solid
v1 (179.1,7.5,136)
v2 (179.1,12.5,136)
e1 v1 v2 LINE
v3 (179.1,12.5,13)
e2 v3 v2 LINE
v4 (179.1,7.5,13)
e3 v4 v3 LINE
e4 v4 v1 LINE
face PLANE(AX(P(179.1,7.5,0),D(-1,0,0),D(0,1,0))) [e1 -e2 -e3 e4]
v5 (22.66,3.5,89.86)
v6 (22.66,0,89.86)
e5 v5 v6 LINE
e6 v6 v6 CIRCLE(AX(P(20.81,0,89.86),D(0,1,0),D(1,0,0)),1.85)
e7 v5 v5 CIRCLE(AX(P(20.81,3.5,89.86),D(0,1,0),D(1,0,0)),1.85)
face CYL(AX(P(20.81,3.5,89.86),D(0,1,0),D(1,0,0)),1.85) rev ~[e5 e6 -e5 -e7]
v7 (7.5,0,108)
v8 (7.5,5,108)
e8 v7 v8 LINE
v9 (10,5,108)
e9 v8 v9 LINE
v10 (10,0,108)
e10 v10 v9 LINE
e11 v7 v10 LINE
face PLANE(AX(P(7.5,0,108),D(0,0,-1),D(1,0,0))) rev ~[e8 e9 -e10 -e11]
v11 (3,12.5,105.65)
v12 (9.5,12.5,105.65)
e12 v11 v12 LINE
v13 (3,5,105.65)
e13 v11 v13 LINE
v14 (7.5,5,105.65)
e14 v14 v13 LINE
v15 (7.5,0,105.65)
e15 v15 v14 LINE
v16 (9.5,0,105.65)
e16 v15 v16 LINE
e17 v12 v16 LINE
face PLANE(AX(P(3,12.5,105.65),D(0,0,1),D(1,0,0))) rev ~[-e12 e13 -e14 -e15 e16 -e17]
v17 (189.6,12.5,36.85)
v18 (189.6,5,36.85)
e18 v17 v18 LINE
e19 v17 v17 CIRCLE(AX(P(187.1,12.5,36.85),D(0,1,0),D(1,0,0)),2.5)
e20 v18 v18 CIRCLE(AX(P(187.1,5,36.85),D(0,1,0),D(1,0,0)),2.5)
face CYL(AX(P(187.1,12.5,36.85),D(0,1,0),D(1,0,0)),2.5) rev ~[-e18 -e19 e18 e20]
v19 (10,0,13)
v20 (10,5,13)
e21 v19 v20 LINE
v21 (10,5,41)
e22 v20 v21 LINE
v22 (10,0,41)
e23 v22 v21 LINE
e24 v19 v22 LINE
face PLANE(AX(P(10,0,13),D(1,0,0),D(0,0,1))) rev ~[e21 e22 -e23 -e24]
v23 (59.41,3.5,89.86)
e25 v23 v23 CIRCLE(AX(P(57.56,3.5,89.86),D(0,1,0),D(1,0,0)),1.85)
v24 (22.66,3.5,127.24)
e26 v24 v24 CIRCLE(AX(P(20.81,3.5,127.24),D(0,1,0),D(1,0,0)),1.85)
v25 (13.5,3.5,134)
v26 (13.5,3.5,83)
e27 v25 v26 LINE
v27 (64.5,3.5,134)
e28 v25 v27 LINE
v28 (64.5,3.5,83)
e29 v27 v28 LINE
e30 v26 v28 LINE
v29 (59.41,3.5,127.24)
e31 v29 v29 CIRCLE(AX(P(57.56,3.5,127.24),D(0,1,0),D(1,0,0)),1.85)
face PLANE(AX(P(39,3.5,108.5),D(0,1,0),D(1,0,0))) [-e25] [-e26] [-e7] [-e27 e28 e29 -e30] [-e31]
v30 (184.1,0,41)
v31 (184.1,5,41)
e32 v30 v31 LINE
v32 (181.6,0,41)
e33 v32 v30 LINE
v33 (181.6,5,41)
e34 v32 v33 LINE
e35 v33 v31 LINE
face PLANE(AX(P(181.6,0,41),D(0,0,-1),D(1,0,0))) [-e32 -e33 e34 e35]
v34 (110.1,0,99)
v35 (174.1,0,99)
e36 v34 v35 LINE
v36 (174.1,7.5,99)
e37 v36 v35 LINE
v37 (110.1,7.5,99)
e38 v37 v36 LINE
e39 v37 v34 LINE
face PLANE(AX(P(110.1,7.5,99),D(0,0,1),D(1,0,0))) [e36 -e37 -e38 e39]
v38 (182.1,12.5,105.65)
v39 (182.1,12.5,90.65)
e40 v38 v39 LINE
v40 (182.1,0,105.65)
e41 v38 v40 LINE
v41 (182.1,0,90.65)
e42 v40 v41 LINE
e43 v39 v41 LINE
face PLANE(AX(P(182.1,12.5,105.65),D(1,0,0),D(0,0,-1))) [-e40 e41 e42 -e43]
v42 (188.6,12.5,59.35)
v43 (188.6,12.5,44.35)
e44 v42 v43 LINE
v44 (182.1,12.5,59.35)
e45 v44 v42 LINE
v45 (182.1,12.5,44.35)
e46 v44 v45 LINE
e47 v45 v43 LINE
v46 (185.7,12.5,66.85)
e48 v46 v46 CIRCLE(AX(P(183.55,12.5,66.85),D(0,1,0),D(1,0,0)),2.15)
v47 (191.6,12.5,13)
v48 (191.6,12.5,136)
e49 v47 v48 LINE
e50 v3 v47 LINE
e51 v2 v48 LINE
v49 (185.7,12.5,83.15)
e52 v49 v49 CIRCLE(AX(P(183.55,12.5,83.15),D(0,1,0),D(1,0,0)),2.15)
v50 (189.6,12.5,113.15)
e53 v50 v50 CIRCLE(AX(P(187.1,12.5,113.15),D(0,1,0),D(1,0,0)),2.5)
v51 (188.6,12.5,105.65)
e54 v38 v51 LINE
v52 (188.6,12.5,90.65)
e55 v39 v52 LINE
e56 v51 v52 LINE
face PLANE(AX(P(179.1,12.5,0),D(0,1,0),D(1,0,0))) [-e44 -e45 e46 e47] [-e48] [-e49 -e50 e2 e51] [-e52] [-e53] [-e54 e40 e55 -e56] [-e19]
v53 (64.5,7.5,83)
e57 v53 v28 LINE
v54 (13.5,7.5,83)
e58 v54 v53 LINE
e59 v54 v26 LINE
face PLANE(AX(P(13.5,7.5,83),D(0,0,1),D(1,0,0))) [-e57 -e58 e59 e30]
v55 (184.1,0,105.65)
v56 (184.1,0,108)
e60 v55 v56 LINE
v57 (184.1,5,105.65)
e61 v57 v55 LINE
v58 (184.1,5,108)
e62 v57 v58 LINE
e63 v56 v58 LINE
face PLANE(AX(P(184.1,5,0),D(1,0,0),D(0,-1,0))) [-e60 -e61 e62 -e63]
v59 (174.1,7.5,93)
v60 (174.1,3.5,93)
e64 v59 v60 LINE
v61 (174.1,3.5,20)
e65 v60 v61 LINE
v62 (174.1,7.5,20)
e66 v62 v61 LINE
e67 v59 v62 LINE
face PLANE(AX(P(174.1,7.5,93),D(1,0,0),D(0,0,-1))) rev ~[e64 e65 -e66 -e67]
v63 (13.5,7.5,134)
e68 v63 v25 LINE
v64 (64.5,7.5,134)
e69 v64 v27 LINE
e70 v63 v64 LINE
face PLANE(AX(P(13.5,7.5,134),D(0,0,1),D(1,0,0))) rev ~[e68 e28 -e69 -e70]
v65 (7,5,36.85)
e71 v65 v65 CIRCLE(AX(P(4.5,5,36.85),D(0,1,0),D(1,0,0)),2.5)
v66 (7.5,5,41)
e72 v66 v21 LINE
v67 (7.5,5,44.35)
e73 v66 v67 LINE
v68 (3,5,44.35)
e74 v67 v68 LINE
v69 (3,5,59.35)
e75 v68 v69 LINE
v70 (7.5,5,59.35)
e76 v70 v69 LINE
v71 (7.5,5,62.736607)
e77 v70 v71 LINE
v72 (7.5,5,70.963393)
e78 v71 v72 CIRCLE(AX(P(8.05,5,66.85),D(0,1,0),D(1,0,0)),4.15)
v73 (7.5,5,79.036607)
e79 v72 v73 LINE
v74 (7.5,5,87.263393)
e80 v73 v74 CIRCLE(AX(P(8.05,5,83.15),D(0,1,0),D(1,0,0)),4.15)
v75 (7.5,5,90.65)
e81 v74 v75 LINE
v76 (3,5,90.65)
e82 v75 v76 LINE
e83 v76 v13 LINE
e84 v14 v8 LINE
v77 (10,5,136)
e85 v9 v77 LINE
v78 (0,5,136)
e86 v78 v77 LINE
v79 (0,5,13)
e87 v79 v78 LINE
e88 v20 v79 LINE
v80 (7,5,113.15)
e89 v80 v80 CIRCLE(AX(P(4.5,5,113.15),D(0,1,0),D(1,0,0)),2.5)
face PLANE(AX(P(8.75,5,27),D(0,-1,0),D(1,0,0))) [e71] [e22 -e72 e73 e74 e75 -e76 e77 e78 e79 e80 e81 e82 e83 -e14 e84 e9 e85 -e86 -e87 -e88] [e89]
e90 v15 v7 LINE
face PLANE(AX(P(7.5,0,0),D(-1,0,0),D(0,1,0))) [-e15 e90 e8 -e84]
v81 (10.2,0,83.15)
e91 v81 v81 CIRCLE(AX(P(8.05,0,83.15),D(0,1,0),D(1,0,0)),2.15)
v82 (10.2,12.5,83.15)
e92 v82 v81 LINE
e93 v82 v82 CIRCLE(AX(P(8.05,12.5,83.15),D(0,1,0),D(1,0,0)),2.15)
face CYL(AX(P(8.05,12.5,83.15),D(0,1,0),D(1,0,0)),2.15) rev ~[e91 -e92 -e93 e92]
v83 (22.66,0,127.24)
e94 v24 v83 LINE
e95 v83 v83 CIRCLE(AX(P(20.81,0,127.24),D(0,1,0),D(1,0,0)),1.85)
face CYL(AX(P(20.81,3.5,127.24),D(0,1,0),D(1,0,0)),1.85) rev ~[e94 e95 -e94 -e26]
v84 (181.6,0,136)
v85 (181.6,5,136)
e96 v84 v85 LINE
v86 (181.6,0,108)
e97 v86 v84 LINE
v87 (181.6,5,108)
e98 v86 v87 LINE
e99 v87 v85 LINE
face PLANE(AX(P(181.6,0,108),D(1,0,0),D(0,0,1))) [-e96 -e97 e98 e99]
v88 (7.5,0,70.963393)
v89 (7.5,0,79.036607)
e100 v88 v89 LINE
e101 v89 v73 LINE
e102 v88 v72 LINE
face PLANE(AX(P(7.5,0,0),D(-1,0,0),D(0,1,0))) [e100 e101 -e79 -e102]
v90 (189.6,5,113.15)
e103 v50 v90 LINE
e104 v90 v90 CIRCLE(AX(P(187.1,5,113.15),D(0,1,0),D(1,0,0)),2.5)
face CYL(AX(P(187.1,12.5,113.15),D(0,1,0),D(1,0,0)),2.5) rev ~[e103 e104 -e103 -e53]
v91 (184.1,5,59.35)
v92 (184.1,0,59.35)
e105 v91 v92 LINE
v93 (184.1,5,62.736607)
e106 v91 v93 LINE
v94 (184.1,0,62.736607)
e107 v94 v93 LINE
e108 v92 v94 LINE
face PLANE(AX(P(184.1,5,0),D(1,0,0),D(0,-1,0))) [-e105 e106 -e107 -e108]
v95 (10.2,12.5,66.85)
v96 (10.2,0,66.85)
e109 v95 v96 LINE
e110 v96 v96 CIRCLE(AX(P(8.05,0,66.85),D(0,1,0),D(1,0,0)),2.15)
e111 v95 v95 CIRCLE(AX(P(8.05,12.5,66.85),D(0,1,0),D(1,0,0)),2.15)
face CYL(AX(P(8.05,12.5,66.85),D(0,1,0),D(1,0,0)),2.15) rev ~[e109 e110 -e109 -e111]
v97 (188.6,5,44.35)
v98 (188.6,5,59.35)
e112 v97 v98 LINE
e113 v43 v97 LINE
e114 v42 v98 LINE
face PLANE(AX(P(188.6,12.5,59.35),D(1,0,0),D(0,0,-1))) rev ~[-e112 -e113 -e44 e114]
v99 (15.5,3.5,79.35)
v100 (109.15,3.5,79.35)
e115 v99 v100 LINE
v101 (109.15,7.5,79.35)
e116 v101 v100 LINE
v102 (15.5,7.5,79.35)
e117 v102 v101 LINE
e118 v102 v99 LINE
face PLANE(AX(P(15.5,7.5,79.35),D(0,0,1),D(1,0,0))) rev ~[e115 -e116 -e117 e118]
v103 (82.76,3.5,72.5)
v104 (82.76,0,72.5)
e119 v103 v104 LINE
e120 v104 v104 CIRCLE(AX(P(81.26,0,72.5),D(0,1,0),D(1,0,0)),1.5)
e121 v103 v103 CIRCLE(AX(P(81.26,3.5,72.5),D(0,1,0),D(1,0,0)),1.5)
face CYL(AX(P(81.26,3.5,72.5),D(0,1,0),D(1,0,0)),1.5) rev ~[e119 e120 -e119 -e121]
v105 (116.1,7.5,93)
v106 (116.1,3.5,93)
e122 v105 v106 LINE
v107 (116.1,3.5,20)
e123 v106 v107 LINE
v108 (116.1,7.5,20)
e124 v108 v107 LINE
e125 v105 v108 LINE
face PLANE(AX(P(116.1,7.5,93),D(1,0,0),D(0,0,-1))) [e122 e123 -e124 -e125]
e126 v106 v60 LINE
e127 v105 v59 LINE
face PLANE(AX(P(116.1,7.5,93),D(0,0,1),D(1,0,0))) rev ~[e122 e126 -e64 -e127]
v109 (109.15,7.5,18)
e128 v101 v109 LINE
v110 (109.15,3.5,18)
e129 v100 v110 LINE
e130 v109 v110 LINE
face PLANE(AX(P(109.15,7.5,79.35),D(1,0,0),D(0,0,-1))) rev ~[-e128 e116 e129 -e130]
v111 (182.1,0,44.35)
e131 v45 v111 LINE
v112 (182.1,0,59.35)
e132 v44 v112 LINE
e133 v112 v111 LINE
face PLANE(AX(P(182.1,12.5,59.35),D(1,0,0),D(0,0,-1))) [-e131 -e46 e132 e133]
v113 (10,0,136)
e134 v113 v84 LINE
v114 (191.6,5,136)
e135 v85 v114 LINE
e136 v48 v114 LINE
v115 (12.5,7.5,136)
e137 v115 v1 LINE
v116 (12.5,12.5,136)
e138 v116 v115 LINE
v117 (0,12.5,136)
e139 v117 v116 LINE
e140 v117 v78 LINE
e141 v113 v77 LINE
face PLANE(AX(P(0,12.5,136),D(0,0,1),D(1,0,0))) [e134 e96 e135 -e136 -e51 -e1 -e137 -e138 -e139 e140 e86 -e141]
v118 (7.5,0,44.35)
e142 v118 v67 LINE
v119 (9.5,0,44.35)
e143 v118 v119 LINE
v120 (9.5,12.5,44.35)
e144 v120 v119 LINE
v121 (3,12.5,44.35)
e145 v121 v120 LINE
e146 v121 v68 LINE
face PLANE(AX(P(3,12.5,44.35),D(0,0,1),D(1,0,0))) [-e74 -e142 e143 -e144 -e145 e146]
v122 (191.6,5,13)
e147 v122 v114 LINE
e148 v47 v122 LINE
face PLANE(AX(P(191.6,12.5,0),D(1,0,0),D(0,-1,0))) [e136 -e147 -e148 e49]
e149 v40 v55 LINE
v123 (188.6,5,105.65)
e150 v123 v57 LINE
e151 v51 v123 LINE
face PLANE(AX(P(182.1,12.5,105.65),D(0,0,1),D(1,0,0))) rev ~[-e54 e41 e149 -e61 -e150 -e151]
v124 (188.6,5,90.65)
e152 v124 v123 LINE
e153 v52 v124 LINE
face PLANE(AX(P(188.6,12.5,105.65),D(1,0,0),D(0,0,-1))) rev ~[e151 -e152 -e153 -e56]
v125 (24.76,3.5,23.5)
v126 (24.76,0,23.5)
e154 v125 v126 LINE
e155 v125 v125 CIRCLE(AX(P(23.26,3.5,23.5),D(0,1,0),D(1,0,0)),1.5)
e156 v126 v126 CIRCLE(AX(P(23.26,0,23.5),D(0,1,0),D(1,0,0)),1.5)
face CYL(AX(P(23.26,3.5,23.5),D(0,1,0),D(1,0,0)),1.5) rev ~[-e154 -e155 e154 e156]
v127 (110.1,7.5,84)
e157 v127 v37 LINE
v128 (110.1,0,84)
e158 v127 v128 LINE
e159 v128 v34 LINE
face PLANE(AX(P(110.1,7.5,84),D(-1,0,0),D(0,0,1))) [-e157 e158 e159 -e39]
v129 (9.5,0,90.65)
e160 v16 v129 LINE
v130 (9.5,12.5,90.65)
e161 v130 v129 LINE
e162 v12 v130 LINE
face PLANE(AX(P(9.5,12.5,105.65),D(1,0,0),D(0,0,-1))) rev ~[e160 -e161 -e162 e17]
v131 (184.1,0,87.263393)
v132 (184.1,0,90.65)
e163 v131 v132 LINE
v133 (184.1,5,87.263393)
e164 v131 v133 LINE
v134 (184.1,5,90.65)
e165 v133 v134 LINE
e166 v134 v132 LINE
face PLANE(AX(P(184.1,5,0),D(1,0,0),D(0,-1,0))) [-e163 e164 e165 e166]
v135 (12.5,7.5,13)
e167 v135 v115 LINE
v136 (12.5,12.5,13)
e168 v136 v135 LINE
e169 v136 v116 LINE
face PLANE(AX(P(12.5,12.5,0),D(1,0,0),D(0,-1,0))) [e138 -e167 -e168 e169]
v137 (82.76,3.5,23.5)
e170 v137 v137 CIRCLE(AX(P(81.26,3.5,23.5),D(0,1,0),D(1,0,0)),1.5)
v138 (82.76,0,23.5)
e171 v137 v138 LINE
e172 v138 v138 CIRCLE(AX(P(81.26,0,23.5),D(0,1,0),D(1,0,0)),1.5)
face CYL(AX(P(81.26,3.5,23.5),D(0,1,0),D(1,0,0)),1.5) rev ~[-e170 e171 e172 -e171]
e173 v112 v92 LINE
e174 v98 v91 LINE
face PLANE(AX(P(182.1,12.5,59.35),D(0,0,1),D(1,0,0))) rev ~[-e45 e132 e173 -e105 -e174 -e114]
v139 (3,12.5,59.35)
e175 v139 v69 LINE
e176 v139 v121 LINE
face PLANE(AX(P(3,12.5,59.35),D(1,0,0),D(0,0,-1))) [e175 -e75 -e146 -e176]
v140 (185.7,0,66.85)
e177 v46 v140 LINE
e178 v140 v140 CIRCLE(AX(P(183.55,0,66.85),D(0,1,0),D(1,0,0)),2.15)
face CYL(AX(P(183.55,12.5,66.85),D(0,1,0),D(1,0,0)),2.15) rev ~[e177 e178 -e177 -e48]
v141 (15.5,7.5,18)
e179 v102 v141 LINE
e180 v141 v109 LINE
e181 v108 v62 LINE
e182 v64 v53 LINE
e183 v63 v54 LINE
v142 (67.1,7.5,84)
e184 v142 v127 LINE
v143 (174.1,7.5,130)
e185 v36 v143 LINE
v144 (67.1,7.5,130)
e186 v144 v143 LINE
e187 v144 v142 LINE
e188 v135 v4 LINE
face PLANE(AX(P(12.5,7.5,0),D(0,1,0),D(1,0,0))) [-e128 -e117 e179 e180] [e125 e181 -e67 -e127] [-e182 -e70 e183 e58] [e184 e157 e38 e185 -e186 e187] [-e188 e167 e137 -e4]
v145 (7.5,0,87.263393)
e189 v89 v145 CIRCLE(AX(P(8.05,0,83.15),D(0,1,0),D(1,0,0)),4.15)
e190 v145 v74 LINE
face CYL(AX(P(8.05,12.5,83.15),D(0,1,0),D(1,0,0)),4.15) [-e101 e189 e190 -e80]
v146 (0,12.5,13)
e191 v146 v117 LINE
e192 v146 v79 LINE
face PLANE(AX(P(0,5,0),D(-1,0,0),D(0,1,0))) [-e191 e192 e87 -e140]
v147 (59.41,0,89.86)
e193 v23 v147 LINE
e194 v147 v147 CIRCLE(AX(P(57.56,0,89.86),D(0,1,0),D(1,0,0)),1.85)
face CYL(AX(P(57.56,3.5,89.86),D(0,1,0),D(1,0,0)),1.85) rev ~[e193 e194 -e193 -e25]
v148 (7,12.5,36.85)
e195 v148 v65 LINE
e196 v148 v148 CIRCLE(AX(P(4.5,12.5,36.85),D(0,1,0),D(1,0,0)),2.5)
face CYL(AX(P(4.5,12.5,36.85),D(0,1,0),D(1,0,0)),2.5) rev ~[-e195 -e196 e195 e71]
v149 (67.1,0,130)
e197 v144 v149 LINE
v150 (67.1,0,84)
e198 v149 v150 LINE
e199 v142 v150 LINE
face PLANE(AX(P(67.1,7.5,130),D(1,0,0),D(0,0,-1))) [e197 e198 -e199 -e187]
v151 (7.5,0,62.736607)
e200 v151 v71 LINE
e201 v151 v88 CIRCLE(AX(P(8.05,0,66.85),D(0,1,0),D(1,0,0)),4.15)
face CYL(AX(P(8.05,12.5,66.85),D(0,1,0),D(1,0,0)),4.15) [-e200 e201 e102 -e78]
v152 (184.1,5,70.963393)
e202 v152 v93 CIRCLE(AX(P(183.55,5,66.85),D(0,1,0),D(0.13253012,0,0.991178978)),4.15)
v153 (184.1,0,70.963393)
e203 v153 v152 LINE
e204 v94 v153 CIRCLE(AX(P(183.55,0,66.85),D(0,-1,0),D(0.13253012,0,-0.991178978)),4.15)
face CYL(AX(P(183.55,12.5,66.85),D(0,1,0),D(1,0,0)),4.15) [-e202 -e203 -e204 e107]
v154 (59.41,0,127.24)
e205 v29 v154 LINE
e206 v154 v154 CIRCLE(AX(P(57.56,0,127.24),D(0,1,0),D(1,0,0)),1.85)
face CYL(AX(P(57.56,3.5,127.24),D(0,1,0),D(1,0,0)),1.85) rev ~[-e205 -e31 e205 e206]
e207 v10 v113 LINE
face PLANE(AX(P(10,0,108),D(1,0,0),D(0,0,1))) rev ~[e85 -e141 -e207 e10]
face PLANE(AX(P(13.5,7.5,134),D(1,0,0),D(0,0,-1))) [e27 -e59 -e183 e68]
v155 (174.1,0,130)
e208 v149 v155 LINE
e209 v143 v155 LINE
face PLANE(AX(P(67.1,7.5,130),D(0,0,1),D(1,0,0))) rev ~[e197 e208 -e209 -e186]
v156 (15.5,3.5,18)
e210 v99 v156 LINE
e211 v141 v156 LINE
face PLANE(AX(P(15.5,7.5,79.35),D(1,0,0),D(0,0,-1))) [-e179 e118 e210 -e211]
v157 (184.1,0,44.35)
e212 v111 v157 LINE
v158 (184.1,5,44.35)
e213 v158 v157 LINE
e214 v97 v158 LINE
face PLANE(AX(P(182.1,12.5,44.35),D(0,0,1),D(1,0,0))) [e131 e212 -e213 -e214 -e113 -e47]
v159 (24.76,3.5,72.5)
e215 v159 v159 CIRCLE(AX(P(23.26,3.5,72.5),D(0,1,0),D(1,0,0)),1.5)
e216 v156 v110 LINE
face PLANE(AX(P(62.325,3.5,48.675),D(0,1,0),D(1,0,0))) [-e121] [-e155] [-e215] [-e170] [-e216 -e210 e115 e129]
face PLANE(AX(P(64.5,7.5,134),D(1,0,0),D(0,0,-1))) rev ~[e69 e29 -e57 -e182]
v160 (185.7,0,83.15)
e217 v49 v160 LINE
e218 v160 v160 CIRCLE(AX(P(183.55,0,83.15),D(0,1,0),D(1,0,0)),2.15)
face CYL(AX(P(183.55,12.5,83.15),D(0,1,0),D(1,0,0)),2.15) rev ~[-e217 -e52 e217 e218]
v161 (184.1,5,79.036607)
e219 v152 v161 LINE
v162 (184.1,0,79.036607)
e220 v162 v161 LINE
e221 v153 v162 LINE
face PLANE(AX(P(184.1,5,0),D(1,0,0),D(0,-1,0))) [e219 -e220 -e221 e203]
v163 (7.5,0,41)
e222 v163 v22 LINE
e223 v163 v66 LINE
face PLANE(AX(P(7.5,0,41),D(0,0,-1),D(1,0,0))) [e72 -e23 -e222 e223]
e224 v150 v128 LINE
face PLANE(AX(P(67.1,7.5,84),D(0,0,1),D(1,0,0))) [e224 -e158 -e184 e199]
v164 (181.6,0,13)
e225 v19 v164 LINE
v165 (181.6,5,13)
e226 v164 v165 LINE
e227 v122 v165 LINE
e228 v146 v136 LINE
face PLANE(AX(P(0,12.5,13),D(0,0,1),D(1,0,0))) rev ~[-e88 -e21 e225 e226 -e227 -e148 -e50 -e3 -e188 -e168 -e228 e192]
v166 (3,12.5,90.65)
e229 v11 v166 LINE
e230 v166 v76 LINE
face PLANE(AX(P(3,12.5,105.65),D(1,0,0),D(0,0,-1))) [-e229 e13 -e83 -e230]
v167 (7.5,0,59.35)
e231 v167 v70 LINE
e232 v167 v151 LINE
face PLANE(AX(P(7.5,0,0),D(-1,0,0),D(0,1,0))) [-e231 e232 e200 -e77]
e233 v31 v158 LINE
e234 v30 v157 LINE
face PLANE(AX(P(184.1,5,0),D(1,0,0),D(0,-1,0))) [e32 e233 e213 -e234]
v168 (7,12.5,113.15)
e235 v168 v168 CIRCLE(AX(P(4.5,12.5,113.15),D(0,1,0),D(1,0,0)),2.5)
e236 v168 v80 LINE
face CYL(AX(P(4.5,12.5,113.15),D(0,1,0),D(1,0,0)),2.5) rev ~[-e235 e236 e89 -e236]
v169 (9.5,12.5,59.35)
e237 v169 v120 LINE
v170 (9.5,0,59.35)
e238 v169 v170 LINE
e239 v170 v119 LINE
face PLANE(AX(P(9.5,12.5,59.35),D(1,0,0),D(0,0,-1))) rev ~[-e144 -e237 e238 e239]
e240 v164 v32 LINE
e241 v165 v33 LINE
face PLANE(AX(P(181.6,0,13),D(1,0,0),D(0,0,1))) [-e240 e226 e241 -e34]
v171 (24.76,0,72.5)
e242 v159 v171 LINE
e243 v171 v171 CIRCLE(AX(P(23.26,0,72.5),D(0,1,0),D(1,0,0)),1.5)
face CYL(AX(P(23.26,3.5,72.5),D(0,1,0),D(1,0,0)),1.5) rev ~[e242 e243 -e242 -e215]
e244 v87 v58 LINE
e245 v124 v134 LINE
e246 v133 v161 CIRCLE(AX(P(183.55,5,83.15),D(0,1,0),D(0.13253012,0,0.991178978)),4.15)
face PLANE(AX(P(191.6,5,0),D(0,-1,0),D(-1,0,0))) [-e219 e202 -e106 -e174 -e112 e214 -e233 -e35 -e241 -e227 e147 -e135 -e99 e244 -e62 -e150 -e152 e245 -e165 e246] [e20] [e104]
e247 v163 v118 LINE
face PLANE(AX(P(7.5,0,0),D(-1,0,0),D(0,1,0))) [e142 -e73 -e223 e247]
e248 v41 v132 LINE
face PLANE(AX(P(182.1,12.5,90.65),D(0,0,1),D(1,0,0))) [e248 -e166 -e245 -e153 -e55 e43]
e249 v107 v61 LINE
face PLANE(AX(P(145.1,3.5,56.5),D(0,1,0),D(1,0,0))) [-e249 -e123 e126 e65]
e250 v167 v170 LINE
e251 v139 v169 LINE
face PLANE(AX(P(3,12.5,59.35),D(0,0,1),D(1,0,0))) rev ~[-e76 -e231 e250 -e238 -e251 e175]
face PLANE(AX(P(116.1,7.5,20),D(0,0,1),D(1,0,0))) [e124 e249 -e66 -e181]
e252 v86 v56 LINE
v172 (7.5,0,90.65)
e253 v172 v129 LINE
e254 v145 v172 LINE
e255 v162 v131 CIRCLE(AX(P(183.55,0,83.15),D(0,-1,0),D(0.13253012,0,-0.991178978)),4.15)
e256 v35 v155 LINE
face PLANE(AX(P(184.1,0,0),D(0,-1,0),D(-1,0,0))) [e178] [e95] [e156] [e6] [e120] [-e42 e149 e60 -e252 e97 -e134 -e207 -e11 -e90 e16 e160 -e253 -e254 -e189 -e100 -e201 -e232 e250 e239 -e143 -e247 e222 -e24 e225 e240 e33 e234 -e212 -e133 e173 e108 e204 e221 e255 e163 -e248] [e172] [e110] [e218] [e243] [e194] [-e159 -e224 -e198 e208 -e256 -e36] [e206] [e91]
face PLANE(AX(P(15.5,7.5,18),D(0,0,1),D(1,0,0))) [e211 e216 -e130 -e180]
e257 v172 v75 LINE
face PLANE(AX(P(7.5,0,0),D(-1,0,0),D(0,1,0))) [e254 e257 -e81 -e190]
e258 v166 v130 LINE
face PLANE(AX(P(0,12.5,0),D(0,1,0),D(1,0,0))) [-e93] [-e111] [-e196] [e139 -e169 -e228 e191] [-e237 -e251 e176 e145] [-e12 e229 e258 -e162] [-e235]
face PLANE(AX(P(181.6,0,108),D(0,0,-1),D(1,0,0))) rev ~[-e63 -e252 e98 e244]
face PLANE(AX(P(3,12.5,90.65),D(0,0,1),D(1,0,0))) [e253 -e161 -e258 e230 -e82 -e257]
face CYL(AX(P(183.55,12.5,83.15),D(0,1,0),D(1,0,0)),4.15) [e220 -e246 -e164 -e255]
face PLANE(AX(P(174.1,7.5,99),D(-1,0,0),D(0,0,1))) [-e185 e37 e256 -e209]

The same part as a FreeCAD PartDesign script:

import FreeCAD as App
import Part
import Sketcher
from FreeCAD import Vector


def add_polygon(sketch, points):
    """Adds a closed chain of lines whose ends are joined by coincident constraints."""
    first, n = sketch.GeometryCount, len(points)
    for a, b in zip(points, points[1:] + points[:1]):
        sketch.addGeometry(Part.LineSegment(App.Vector(*a, 0), App.Vector(*b, 0)), False)
    for i in range(n):
        sketch.addConstraint(Sketcher.Constraint("Coincident", first + i, 2, first + (i + 1) % n, 1))

doc = App.newDocument("Part")
body = doc.addObject("PartDesign::Body", "Body")

# Sketch on XY plane
sketch1 = doc.addObject("Sketcher::SketchObject", "Sketch")
body.addObject(sketch1)
sketch1.AttachmentSupport = (doc.XY_Plane, [""])
sketch1.MapMode = "FlatFace"
add_polygon(sketch1, [(192, 12), (179, 12), (179, 8), (12, 8), (12, 12), (0, 12), (0, 5), (8, 5), (8, 0), (184, 0), (184, 5), (192, 5)])  # lines 0-11
sketch1.addConstraint([
    Sketcher.Constraint("Horizontal", 0),
    Sketcher.Constraint("Vertical", 1),
    Sketcher.Constraint("Horizontal", 2),
    Sketcher.Constraint("Vertical", 3),
    Sketcher.Constraint("Horizontal", 4),
    Sketcher.Constraint("Vertical", 5),
    Sketcher.Constraint("Horizontal", 6),
    Sketcher.Constraint("Vertical", 7),
    Sketcher.Constraint("Horizontal", 8),
    Sketcher.Constraint("Vertical", 9),
    Sketcher.Constraint("Horizontal", 10),
    Sketcher.Constraint("Vertical", 11),
    Sketcher.Constraint("PointOnObject", 4, 2, -2),
    Sketcher.Constraint("PointOnObject", 7, 2, -1),
    Sketcher.Constraint("Horizontal", 0, 2, 3, 2),
    Sketcher.Constraint("Horizontal", 6, 2, 9, 2),
    Sketcher.Constraint("Equal", 0, 4),
    Sketcher.Constraint("Equal", 6, 10),
    Sketcher.Constraint("Equal", 10, 5),
    Sketcher.Constraint("Equal", 3, 7),
    Sketcher.Constraint("DistanceY", 1, 2, 1, 1, 5.0),
    Sketcher.Constraint("DistanceX", 0, 2, 0, 1, 12.5),
    Sketcher.Constraint("DistanceX", 2, 2, 2, 1, 166.6),
    Sketcher.Constraint("DistanceX", 6, 1, 6, 2, 7.5),
])
pad1 = doc.addObject("PartDesign::Pad", "Pad")
body.addObject(pad1)
pad1.Profile = sketch1
pad1.Length = 150

# Sketch on XZ plane
sketch2 = doc.addObject("Sketcher::SketchObject", "Sketch001")
body.addObject(sketch2)
sketch2.AttachmentSupport = (doc.XZ_Plane, [""])
sketch2.MapMode = "FlatFace"
sketch2.AttachmentOffset = App.Placement(Vector(0, 0, -12.5), App.Rotation())
sketch2.addGeometry([
    Part.Circle(Vector(8.1, 66.8, 0), Vector(0, 0, 1), 2.5),
    Part.Circle(Vector(8.1, 83.2, 0), Vector(0, 0, 1), 2.5),
    Part.Circle(Vector(183.6, 66.8, 0), Vector(0, 0, 1), 2.5),
    Part.Circle(Vector(183.6, 83.2, 0), Vector(0, 0, 1), 2.5),
], False)
sketch2.addConstraint([
    Sketcher.Constraint("Equal", 0, 1),
    Sketcher.Constraint("Equal", 1, 2),
    Sketcher.Constraint("Equal", 2, 3),
    Sketcher.Constraint("Horizontal", 0, 3, 2, 3),
    Sketcher.Constraint("Horizontal", 1, 3, 3, 3),
    Sketcher.Constraint("Vertical", 0, 3, 1, 3),
    Sketcher.Constraint("Vertical", 2, 3, 3, 3),
    Sketcher.Constraint("Diameter", 0, 5.0),
    Sketcher.Constraint("DistanceY", 0, 3, 1, 3, 16.3),
    Sketcher.Constraint("DistanceX", 0, 3, 2, 3, 175.5),
    Sketcher.Constraint("DistanceX", -1, 1, 0, 3, 8.05),
    Sketcher.Constraint("DistanceY", -1, 1, 0, 3, 66.85),
])
pocket1 = doc.addObject("PartDesign::Pocket", "Pocket")
body.addObject(pocket1)
pocket1.Profile = sketch2
pocket1.Type = "ThroughAll"
pocket1.Reversed = True

# Sketch on XZ plane
sketch3 = doc.addObject("Sketcher::SketchObject", "Sketch002")
body.addObject(sketch3)
sketch3.AttachmentSupport = (doc.XZ_Plane, [""])
sketch3.MapMode = "FlatFace"
sketch3.AttachmentOffset = App.Placement(Vector(0, 0, -12.5), App.Rotation())
sketch3.addGeometry([
    Part.Circle(Vector(183.6, 66.8, 0), Vector(0, 0, 1), 4.2),  # 0
    Part.Circle(Vector(183.6, 66.8, 0), Vector(0, 0, 1), 2.1),  # 1
    Part.Circle(Vector(183.6, 83.2, 0), Vector(0, 0, 1), 4.2),  # 2
    Part.Circle(Vector(183.6, 83.2, 0), Vector(0, 0, 1), 2.1),  # 3
    Part.Circle(Vector(8.1, 66.8, 0), Vector(0, 0, 1), 4.2),  # 4
    Part.Circle(Vector(8.1, 66.8, 0), Vector(0, 0, 1), 2.1),  # 5
    Part.Circle(Vector(8.1, 83.2, 0), Vector(0, 0, 1), 4.2),  # 6
    Part.Circle(Vector(8.1, 83.2, 0), Vector(0, 0, 1), 2.1),  # 7
], False)
sketch3.addConstraint([
    Sketcher.Constraint("Coincident", 1, 3, 0, 3),
    Sketcher.Constraint("Coincident", 3, 3, 2, 3),
    Sketcher.Constraint("Coincident", 5, 3, 4, 3),
    Sketcher.Constraint("Coincident", 7, 3, 6, 3),
    Sketcher.Constraint("Equal", 0, 2),
    Sketcher.Constraint("Equal", 1, 3),
    Sketcher.Constraint("Equal", 2, 4),
    Sketcher.Constraint("Equal", 3, 5),
    Sketcher.Constraint("Equal", 4, 6),
    Sketcher.Constraint("Equal", 5, 7),
    Sketcher.Constraint("Horizontal", 1, 3, 4, 3),
    Sketcher.Constraint("Horizontal", 3, 3, 6, 3),
    Sketcher.Constraint("Vertical", 1, 3, 2, 3),
    Sketcher.Constraint("Vertical", 5, 3, 6, 3),
    Sketcher.Constraint("Diameter", 0, 8.3),
    Sketcher.Constraint("Diameter", 1, 4.3),
    Sketcher.Constraint("DistanceY", 0, 3, 2, 3, 16.3),
    Sketcher.Constraint("DistanceX", 4, 3, 0, 3, 175.5),
    Sketcher.Constraint("DistanceX", -1, 1, 0, 3, 183.55),
    Sketcher.Constraint("DistanceY", -1, 1, 0, 3, 66.85),
])
pad2 = doc.addObject("PartDesign::Pad", "Pad001")
body.addObject(pad2)
pad2.Profile = sketch3
pad2.Length = 12.5

# Sketch on XZ plane
sketch4 = doc.addObject("Sketcher::SketchObject", "Sketch003")
body.addObject(sketch4)
sketch4.AttachmentSupport = (doc.XZ_Plane, [""])
sketch4.MapMode = "FlatFace"
sketch4.AttachmentOffset = App.Placement(Vector(0, 0, -7.5), App.Rotation())
add_polygon(sketch4, [(18, 87), (18, 130), (60, 130), (60, 87)])  # lines 0-3
add_polygon(sketch4, [(18, 20), (18, 77), (107, 77), (107, 20)])  # lines 4-7
add_polygon(sketch4, [(116, 20), (116, 93), (174, 93), (174, 20)])  # lines 8-11
sketch4.addConstraint([
    Sketcher.Constraint("Vertical", 0),
    Sketcher.Constraint("Horizontal", 1),
    Sketcher.Constraint("Vertical", 2),
    Sketcher.Constraint("Horizontal", 3),
    Sketcher.Constraint("Vertical", 4),
    Sketcher.Constraint("Horizontal", 5),
    Sketcher.Constraint("Vertical", 6),
    Sketcher.Constraint("Horizontal", 7),
    Sketcher.Constraint("Vertical", 8),
    Sketcher.Constraint("Horizontal", 9),
    Sketcher.Constraint("Vertical", 10),
    Sketcher.Constraint("Horizontal", 11),
    Sketcher.Constraint("Horizontal", 7, 2, 10, 2),
    Sketcher.Constraint("Vertical", 3, 2, 4, 2),
    Sketcher.Constraint("Equal", 3, 0),
    Sketcher.Constraint("DistanceX", 1, 1, 1, 2, 43.0),
    Sketcher.Constraint("DistanceX", 9, 1, 9, 2, 58.0),
    Sketcher.Constraint("DistanceY", 8, 1, 8, 2, 73.0),
    Sketcher.Constraint("DistanceY", -1, 1, 0, 2, 130.0),
    Sketcher.Constraint("DistanceY", -1, 1, 6, 2, 20.0),
    Sketcher.Constraint("DistanceX", 5, 1, 5, 2, 89.65),
    Sketcher.Constraint("DistanceY", 4, 1, 4, 2, 57.35),
    Sketcher.Constraint("DistanceX", -1, 1, 0, 2, 17.5),
    Sketcher.Constraint("DistanceX", -1, 1, 8, 2, 116.1),
])
pocket2 = doc.addObject("PartDesign::Pocket", "Pocket001")
body.addObject(pocket2)
pocket2.Profile = sketch4
pocket2.Length = 4
pocket2.Reversed = True

# Sketch on XZ plane
sketch5 = doc.addObject("Sketcher::SketchObject", "Sketch004")
body.addObject(sketch5)
sketch5.AttachmentSupport = (doc.XZ_Plane, [""])
sketch5.MapMode = "FlatFace"
sketch5.AttachmentOffset = App.Placement(Vector(0, 0, -7.5), App.Rotation())
add_polygon(sketch5, [(110, 84), (67, 84), (67, 130), (174, 130), (174, 99), (110, 99)])  # lines 0-5
sketch5.addConstraint([
    Sketcher.Constraint("Horizontal", 0),
    Sketcher.Constraint("Vertical", 1),
    Sketcher.Constraint("Horizontal", 2),
    Sketcher.Constraint("Vertical", 3),
    Sketcher.Constraint("Horizontal", 4),
    Sketcher.Constraint("Vertical", 5),
    Sketcher.Constraint("DistanceX", 0, 2, 0, 1, 43.0),
    Sketcher.Constraint("DistanceX", 2, 1, 2, 2, 107.0),
    Sketcher.Constraint("DistanceY", 1, 1, 1, 2, 46.0),
    Sketcher.Constraint("DistanceY", 3, 2, 3, 1, 31.0),
    Sketcher.Constraint("DistanceY", -1, 1, 0, 2, 84.0),
    Sketcher.Constraint("DistanceX", -1, 1, 0, 2, 67.1),
])
pocket3 = doc.addObject("PartDesign::Pocket", "Pocket002")
body.addObject(pocket3)
pocket3.Profile = sketch5
pocket3.Length = 7.5
pocket3.Reversed = True

# Sketch on XZ plane
sketch6 = doc.addObject("Sketcher::SketchObject", "Sketch005")
body.addObject(sketch6)
sketch6.AttachmentSupport = (doc.XZ_Plane, [""])
sketch6.MapMode = "FlatFace"
sketch6.AttachmentOffset = App.Placement(Vector(0, 0, -3.5), App.Rotation())
sketch6.addGeometry([
    Part.Circle(Vector(23.3, 23.5, 0), Vector(0, 0, 1), 1.5),
    Part.Circle(Vector(23.3, 72.5, 0), Vector(0, 0, 1), 1.5),
    Part.Circle(Vector(81.3, 72.5, 0), Vector(0, 0, 1), 1.5),
    Part.Circle(Vector(81.3, 23.5, 0), Vector(0, 0, 1), 1.5),
], False)
sketch6.addConstraint([
    Sketcher.Constraint("Equal", 0, 1),
    Sketcher.Constraint("Equal", 1, 2),
    Sketcher.Constraint("Equal", 2, 3),
    Sketcher.Constraint("Horizontal", 1, 3, 2, 3),
    Sketcher.Constraint("Horizontal", 0, 3, 3, 3),
    Sketcher.Constraint("Vertical", 0, 3, 1, 3),
    Sketcher.Constraint("Vertical", 2, 3, 3, 3),
    Sketcher.Constraint("Diameter", 0, 3.0),
    Sketcher.Constraint("DistanceY", 0, 3, 1, 3, 49.0),
    Sketcher.Constraint("DistanceX", 1, 3, 2, 3, 58.0),
    Sketcher.Constraint("DistanceY", -1, 1, 0, 3, 23.5),
    Sketcher.Constraint("DistanceX", -1, 1, 0, 3, 23.26),
])
pocket4 = doc.addObject("PartDesign::Pocket", "Pocket003")
body.addObject(pocket4)
pocket4.Profile = sketch6
pocket4.Length = 3.5
pocket4.Reversed = True

# Sketch on XZ plane
sketch7 = doc.addObject("Sketcher::SketchObject", "Sketch006")
body.addObject(sketch7)
sketch7.AttachmentSupport = (doc.XZ_Plane, [""])
sketch7.MapMode = "FlatFace"
sketch7.AttachmentOffset = App.Placement(Vector(0, 0, -3.5), App.Rotation())
sketch7.addGeometry([
    Part.Circle(Vector(57.6, 127.2, 0), Vector(0, 0, 1), 1.9),
    Part.Circle(Vector(57.6, 89.9, 0), Vector(0, 0, 1), 1.9),
    Part.Circle(Vector(20.8, 89.9, 0), Vector(0, 0, 1), 1.9),
    Part.Circle(Vector(20.8, 127.2, 0), Vector(0, 0, 1), 1.9),
], False)
sketch7.addConstraint([
    Sketcher.Constraint("Equal", 0, 1),
    Sketcher.Constraint("Equal", 1, 2),
    Sketcher.Constraint("Equal", 2, 3),
    Sketcher.Constraint("Horizontal", 1, 3, 2, 3),
    Sketcher.Constraint("Horizontal", 0, 3, 3, 3),
    Sketcher.Constraint("Vertical", 0, 3, 1, 3),
    Sketcher.Constraint("Vertical", 2, 3, 3, 3),
    Sketcher.Constraint("Diameter", 0, 3.7),
    Sketcher.Constraint("DistanceX", -1, 1, 0, 3, 57.56),
    Sketcher.Constraint("DistanceY", -1, 1, 0, 3, 127.24),
    Sketcher.Constraint("DistanceY", -1, 1, 1, 3, 89.86),
    Sketcher.Constraint("DistanceX", -1, 1, 2, 3, 20.81),
])
pocket5 = doc.addObject("PartDesign::Pocket", "Pocket004")
body.addObject(pocket5)
pocket5.Profile = sketch7
pocket5.Length = 3.5
pocket5.Reversed = True

# Sketch on XZ plane
sketch8 = doc.addObject("Sketcher::SketchObject", "Sketch007")
body.addObject(sketch8)
sketch8.AttachmentSupport = (doc.XZ_Plane, [""])
sketch8.MapMode = "FlatFace"
sketch8.AttachmentOffset = App.Placement(Vector(0, 0, -7.5), App.Rotation())
add_polygon(sketch8, [(16, 86), (16, 131), (62, 131), (62, 86)])  # lines 0-3
add_polygon(sketch8, [(60, 130), (18, 130), (18, 87), (60, 87)])  # lines 4-7
sketch8.addConstraint([
    Sketcher.Constraint("Vertical", 0),
    Sketcher.Constraint("Horizontal", 1),
    Sketcher.Constraint("Vertical", 2),
    Sketcher.Constraint("Horizontal", 3),
    Sketcher.Constraint("Horizontal", 4),
    Sketcher.Constraint("Vertical", 5),
    Sketcher.Constraint("Horizontal", 6),
    Sketcher.Constraint("Vertical", 7),
    Sketcher.Constraint("Equal", 3, 0),
    Sketcher.Constraint("Equal", 6, 5),
    Sketcher.Constraint("DistanceX", 1, 1, 1, 2, 45.0),
    Sketcher.Constraint("DistanceX", 4, 2, 4, 1, 43.0),
    Sketcher.Constraint("DistanceY", -1, 1, 0, 2, 131.0),
    Sketcher.Constraint("DistanceY", -1, 1, 4, 2, 130.0),
    Sketcher.Constraint("DistanceX", 0, 2, 4, 2, 1.0),
    Sketcher.Constraint("DistanceX", -1, 1, 0, 2, 16.5),
])
pocket6 = doc.addObject("PartDesign::Pocket", "Pocket005")
body.addObject(pocket6)
pocket6.Profile = sketch8
pocket6.Length = 4
pocket6.Reversed = True

# Sketch on XZ plane
sketch9 = doc.addObject("Sketcher::SketchObject", "Sketch008")
body.addObject(sketch9)
sketch9.AttachmentSupport = (doc.XZ_Plane, [""])
sketch9.MapMode = "FlatFace"
sketch9.AttachmentOffset = App.Placement(Vector(0, 0, -7.5), App.Rotation())
add_polygon(sketch9, [(16, 18), (16, 79), (109, 79), (109, 18)])  # lines 0-3
add_polygon(sketch9, [(107, 77), (18, 77), (18, 20), (107, 20)])  # lines 4-7
sketch9.addConstraint([
    Sketcher.Constraint("Vertical", 0),
    Sketcher.Constraint("Horizontal", 1),
    Sketcher.Constraint("Vertical", 2),
    Sketcher.Constraint("Horizontal", 3),
    Sketcher.Constraint("Horizontal", 4),
    Sketcher.Constraint("Vertical", 5),
    Sketcher.Constraint("Horizontal", 6),
    Sketcher.Constraint("Vertical", 7),
    Sketcher.Constraint("DistanceY", -1, 1, 2, 2, 18.0),
    Sketcher.Constraint("DistanceY", -1, 1, 5, 2, 20.0),
    Sketcher.Constraint("DistanceX", 0, 2, 4, 2, 2.0),
    Sketcher.Constraint("DistanceY", 4, 2, 0, 2, 2.0),
    Sketcher.Constraint("DistanceX", 6, 2, 2, 2, 2.0),
    Sketcher.Constraint("DistanceX", 1, 1, 1, 2, 93.65),
    Sketcher.Constraint("DistanceY", 0, 1, 0, 2, 61.35),
    Sketcher.Constraint("DistanceX", -1, 1, 0, 2, 15.5),
])
pocket7 = doc.addObject("PartDesign::Pocket", "Pocket006")
body.addObject(pocket7)
pocket7.Profile = sketch9
pocket7.Length = 4
pocket7.Reversed = True

# Sketch on XZ plane
sketch10 = doc.addObject("Sketcher::SketchObject", "Sketch009")
body.addObject(sketch10)
sketch10.AttachmentSupport = (doc.XZ_Plane, [""])
sketch10.MapMode = "FlatFace"
sketch10.AttachmentOffset = App.Placement(Vector(0, 0, -12.5), App.Rotation())
add_polygon(sketch10, [(0, 0), (0, 13), (192, 13), (192, 0)])  # lines 0-3
add_polygon(sketch10, [(0, 136), (0, 150), (192, 150), (192, 136)])  # lines 4-7
sketch10.addConstraint([
    Sketcher.Constraint("Vertical", 0),
    Sketcher.Constraint("Horizontal", 1),
    Sketcher.Constraint("Vertical", 2),
    Sketcher.Constraint("Horizontal", 3),
    Sketcher.Constraint("Vertical", 4),
    Sketcher.Constraint("Horizontal", 5),
    Sketcher.Constraint("Vertical", 6),
    Sketcher.Constraint("Horizontal", 7),
    Sketcher.Constraint("Coincident", 3, 2, -1, 1),
    Sketcher.Constraint("PointOnObject", 4, 2, -2),
    Sketcher.Constraint("Vertical", 2, 2, 5, 2),
    Sketcher.Constraint("DistanceY", 0, 1, 0, 2, 13.0),
    Sketcher.Constraint("DistanceY", 4, 1, 4, 2, 14.0),
    Sketcher.Constraint("DistanceX", 1, 1, 1, 2, 191.6),
    Sketcher.Constraint("DistanceY", -1, 1, 4, 2, 150.0),
])
pocket8 = doc.addObject("PartDesign::Pocket", "Pocket007")
body.addObject(pocket8)
pocket8.Profile = sketch10
pocket8.Length = 12.5
pocket8.Reversed = True

# Sketch on XZ plane
sketch11 = doc.addObject("Sketcher::SketchObject", "Sketch010")
body.addObject(sketch11)
sketch11.AttachmentSupport = (doc.XZ_Plane, [""])
sketch11.MapMode = "FlatFace"
sketch11.AttachmentOffset = App.Placement(Vector(0, 0, -12.5), App.Rotation())
add_polygon(sketch11, [(3, 44), (3, 59), (10, 59), (10, 44)])  # lines 0-3
add_polygon(sketch11, [(3, 91), (3, 106), (10, 106), (10, 91)])  # lines 4-7
add_polygon(sketch11, [(182, 44), (182, 59), (189, 59), (189, 44)])  # lines 8-11
add_polygon(sketch11, [(182, 91), (182, 106), (189, 106), (189, 91)])  # lines 12-15
sketch11.addConstraint([
    Sketcher.Constraint("Vertical", 0),
    Sketcher.Constraint("Horizontal", 1),
    Sketcher.Constraint("Vertical", 2),
    Sketcher.Constraint("Horizontal", 3),
    Sketcher.Constraint("Vertical", 4),
    Sketcher.Constraint("Horizontal", 5),
    Sketcher.Constraint("Vertical", 6),
    Sketcher.Constraint("Horizontal", 7),
    Sketcher.Constraint("Vertical", 8),
    Sketcher.Constraint("Horizontal", 9),
    Sketcher.Constraint("Vertical", 10),
    Sketcher.Constraint("Horizontal", 11),
    Sketcher.Constraint("Vertical", 12),
    Sketcher.Constraint("Horizontal", 13),
    Sketcher.Constraint("Vertical", 14),
    Sketcher.Constraint("Horizontal", 15),
    Sketcher.Constraint("Horizontal", 1, 2, 8, 2),
    Sketcher.Constraint("Horizontal", 3, 2, 10, 2),
    Sketcher.Constraint("Horizontal", 5, 2, 12, 2),
    Sketcher.Constraint("Horizontal", 7, 2, 14, 2),
    Sketcher.Constraint("Vertical", 3, 2, 4, 2),
    Sketcher.Constraint("Vertical", 2, 2, 5, 2),
    Sketcher.Constraint("Vertical", 11, 2, 12, 2),
    Sketcher.Constraint("Vertical", 10, 2, 13, 2),
    Sketcher.Constraint("Equal", 7, 9),
    Sketcher.Constraint("Equal", 2, 4),
    Sketcher.Constraint("DistanceY", 0, 1, 0, 2, 15.0),
    Sketcher.Constraint("DistanceX", 1, 1, 1, 2, 6.5),
    Sketcher.Constraint("DistanceX", -1, 1, 0, 2, 3.0),
    Sketcher.Constraint("DistanceX", -1, 1, 8, 2, 182.1),
    Sketcher.Constraint("DistanceY", 0, 2, 4, 2, 46.3),
    Sketcher.Constraint("DistanceY", -1, 1, 0, 2, 59.35),
])
pocket9 = doc.addObject("PartDesign::Pocket", "Pocket008")
body.addObject(pocket9)
pocket9.Profile = sketch11
pocket9.Length = 12.5
pocket9.Reversed = True

# Sketch on XZ plane
sketch12 = doc.addObject("Sketcher::SketchObject", "Sketch011")
body.addObject(sketch12)
sketch12.AttachmentSupport = (doc.XZ_Plane, [""])
sketch12.MapMode = "FlatFace"
sketch12.AttachmentOffset = App.Placement(Vector(0, 0, -7.5), App.Rotation())
add_polygon(sketch12, [(14, 83), (14, 134), (64, 134), (64, 83)])  # lines 0-3
sketch12.addConstraint([
    Sketcher.Constraint("Vertical", 0),
    Sketcher.Constraint("Horizontal", 1),
    Sketcher.Constraint("Vertical", 2),
    Sketcher.Constraint("Horizontal", 3),
    Sketcher.Constraint("Equal", 3, 0),
    Sketcher.Constraint("DistanceX", 1, 1, 1, 2, 51.0),
    Sketcher.Constraint("DistanceY", -1, 1, 0, 2, 134.0),
    Sketcher.Constraint("DistanceX", -1, 1, 0, 2, 13.5),
])
pocket10 = doc.addObject("PartDesign::Pocket", "Pocket009")
body.addObject(pocket10)
pocket10.Profile = sketch12
pocket10.Length = 4
pocket10.Reversed = True

# Sketch on XZ plane
sketch13 = doc.addObject("Sketcher::SketchObject", "Sketch012")
body.addObject(sketch13)
sketch13.AttachmentSupport = (doc.XZ_Plane, [""])
sketch13.MapMode = "FlatFace"
sketch13.AttachmentOffset = App.Placement(Vector(0, 0, -12.5), App.Rotation())
sketch13.addGeometry([
    Part.Circle(Vector(4.5, 36.9, 0), Vector(0, 0, 1), 2.5),
    Part.Circle(Vector(4.5, 113.2, 0), Vector(0, 0, 1), 2.5),
    Part.Circle(Vector(187.1, 113.2, 0), Vector(0, 0, 1), 2.5),
    Part.Circle(Vector(187.1, 36.9, 0), Vector(0, 0, 1), 2.5),
], False)
sketch13.addConstraint([
    Sketcher.Constraint("Equal", 0, 1),
    Sketcher.Constraint("Equal", 1, 2),
    Sketcher.Constraint("Equal", 2, 3),
    Sketcher.Constraint("Horizontal", 1, 3, 2, 3),
    Sketcher.Constraint("Horizontal", 0, 3, 3, 3),
    Sketcher.Constraint("Vertical", 0, 3, 1, 3),
    Sketcher.Constraint("Vertical", 2, 3, 3, 3),
    Sketcher.Constraint("Diameter", 0, 5.0),
    Sketcher.Constraint("DistanceX", -1, 1, 0, 3, 4.5),
    Sketcher.Constraint("DistanceX", -1, 1, 2, 3, 187.1),
    Sketcher.Constraint("DistanceY", 0, 3, 1, 3, 76.3),
    Sketcher.Constraint("DistanceY", -1, 1, 0, 3, 36.85),
])
pocket11 = doc.addObject("PartDesign::Pocket", "Pocket010")
body.addObject(pocket11)
pocket11.Profile = sketch13
pocket11.Type = "ThroughAll"
pocket11.Reversed = True

# Sketch on XZ plane
sketch14 = doc.addObject("Sketcher::SketchObject", "Sketch013")
body.addObject(sketch14)
sketch14.AttachmentSupport = (doc.XZ_Plane, [""])
sketch14.MapMode = "FlatFace"
add_polygon(sketch14, [(7.5, 136), (7.5, 108), (10, 108), (10, 136)])  # lines 0-3
add_polygon(sketch14, [(181.6, 136), (181.6, 108), (184.1, 108), (184.1, 136)])  # lines 4-7
add_polygon(sketch14, [(181.6, 41), (181.6, 13), (184.1, 13), (184.1, 41)])  # lines 8-11
add_polygon(sketch14, [(7.5, 41), (7.5, 13), (10, 13), (10, 41)])  # lines 12-15
sketch14.addConstraint([
    Sketcher.Constraint("Vertical", 0),
    Sketcher.Constraint("Horizontal", 1),
    Sketcher.Constraint("Vertical", 2),
    Sketcher.Constraint("Horizontal", 3),
    Sketcher.Constraint("Vertical", 4),
    Sketcher.Constraint("Horizontal", 5),
    Sketcher.Constraint("Vertical", 6),
    Sketcher.Constraint("Horizontal", 7),
    Sketcher.Constraint("Vertical", 8),
    Sketcher.Constraint("Horizontal", 9),
    Sketcher.Constraint("Vertical", 10),
    Sketcher.Constraint("Horizontal", 11),
    Sketcher.Constraint("Vertical", 12),
    Sketcher.Constraint("Horizontal", 13),
    Sketcher.Constraint("Vertical", 14),
    Sketcher.Constraint("Horizontal", 15),
    Sketcher.Constraint("Horizontal", 1, 2, 4, 2),
    Sketcher.Constraint("Horizontal", 3, 2, 6, 2),
    Sketcher.Constraint("Horizontal", 9, 2, 12, 2),
    Sketcher.Constraint("Horizontal", 11, 2, 14, 2),
    Sketcher.Constraint("Vertical", 7, 2, 8, 2),
    Sketcher.Constraint("Vertical", 6, 2, 9, 2),
    Sketcher.Constraint("Vertical", 3, 2, 12, 2),
    Sketcher.Constraint("Vertical", 2, 2, 13, 2),
    Sketcher.Constraint("Equal", 3, 5),
    Sketcher.Constraint("Equal", 6, 8),
    Sketcher.Constraint("DistanceY", 0, 2, 0, 1, 28.0),
    Sketcher.Constraint("DistanceX", 1, 1, 1, 2, 2.5),
    Sketcher.Constraint("DistanceY", -1, 1, 0, 2, 108.0),
    Sketcher.Constraint("DistanceX", -1, 1, 1, 2, 10.0),
    Sketcher.Constraint("DistanceY", -1, 1, 8, 2, 13.0),
    Sketcher.Constraint("DistanceX", -1, 1, 4, 2, 181.6),
])
pocket12 = doc.addObject("PartDesign::Pocket", "Pocket011")
body.addObject(pocket12)
pocket12.Profile = sketch14
pocket12.Length = 5

doc.recompute()
